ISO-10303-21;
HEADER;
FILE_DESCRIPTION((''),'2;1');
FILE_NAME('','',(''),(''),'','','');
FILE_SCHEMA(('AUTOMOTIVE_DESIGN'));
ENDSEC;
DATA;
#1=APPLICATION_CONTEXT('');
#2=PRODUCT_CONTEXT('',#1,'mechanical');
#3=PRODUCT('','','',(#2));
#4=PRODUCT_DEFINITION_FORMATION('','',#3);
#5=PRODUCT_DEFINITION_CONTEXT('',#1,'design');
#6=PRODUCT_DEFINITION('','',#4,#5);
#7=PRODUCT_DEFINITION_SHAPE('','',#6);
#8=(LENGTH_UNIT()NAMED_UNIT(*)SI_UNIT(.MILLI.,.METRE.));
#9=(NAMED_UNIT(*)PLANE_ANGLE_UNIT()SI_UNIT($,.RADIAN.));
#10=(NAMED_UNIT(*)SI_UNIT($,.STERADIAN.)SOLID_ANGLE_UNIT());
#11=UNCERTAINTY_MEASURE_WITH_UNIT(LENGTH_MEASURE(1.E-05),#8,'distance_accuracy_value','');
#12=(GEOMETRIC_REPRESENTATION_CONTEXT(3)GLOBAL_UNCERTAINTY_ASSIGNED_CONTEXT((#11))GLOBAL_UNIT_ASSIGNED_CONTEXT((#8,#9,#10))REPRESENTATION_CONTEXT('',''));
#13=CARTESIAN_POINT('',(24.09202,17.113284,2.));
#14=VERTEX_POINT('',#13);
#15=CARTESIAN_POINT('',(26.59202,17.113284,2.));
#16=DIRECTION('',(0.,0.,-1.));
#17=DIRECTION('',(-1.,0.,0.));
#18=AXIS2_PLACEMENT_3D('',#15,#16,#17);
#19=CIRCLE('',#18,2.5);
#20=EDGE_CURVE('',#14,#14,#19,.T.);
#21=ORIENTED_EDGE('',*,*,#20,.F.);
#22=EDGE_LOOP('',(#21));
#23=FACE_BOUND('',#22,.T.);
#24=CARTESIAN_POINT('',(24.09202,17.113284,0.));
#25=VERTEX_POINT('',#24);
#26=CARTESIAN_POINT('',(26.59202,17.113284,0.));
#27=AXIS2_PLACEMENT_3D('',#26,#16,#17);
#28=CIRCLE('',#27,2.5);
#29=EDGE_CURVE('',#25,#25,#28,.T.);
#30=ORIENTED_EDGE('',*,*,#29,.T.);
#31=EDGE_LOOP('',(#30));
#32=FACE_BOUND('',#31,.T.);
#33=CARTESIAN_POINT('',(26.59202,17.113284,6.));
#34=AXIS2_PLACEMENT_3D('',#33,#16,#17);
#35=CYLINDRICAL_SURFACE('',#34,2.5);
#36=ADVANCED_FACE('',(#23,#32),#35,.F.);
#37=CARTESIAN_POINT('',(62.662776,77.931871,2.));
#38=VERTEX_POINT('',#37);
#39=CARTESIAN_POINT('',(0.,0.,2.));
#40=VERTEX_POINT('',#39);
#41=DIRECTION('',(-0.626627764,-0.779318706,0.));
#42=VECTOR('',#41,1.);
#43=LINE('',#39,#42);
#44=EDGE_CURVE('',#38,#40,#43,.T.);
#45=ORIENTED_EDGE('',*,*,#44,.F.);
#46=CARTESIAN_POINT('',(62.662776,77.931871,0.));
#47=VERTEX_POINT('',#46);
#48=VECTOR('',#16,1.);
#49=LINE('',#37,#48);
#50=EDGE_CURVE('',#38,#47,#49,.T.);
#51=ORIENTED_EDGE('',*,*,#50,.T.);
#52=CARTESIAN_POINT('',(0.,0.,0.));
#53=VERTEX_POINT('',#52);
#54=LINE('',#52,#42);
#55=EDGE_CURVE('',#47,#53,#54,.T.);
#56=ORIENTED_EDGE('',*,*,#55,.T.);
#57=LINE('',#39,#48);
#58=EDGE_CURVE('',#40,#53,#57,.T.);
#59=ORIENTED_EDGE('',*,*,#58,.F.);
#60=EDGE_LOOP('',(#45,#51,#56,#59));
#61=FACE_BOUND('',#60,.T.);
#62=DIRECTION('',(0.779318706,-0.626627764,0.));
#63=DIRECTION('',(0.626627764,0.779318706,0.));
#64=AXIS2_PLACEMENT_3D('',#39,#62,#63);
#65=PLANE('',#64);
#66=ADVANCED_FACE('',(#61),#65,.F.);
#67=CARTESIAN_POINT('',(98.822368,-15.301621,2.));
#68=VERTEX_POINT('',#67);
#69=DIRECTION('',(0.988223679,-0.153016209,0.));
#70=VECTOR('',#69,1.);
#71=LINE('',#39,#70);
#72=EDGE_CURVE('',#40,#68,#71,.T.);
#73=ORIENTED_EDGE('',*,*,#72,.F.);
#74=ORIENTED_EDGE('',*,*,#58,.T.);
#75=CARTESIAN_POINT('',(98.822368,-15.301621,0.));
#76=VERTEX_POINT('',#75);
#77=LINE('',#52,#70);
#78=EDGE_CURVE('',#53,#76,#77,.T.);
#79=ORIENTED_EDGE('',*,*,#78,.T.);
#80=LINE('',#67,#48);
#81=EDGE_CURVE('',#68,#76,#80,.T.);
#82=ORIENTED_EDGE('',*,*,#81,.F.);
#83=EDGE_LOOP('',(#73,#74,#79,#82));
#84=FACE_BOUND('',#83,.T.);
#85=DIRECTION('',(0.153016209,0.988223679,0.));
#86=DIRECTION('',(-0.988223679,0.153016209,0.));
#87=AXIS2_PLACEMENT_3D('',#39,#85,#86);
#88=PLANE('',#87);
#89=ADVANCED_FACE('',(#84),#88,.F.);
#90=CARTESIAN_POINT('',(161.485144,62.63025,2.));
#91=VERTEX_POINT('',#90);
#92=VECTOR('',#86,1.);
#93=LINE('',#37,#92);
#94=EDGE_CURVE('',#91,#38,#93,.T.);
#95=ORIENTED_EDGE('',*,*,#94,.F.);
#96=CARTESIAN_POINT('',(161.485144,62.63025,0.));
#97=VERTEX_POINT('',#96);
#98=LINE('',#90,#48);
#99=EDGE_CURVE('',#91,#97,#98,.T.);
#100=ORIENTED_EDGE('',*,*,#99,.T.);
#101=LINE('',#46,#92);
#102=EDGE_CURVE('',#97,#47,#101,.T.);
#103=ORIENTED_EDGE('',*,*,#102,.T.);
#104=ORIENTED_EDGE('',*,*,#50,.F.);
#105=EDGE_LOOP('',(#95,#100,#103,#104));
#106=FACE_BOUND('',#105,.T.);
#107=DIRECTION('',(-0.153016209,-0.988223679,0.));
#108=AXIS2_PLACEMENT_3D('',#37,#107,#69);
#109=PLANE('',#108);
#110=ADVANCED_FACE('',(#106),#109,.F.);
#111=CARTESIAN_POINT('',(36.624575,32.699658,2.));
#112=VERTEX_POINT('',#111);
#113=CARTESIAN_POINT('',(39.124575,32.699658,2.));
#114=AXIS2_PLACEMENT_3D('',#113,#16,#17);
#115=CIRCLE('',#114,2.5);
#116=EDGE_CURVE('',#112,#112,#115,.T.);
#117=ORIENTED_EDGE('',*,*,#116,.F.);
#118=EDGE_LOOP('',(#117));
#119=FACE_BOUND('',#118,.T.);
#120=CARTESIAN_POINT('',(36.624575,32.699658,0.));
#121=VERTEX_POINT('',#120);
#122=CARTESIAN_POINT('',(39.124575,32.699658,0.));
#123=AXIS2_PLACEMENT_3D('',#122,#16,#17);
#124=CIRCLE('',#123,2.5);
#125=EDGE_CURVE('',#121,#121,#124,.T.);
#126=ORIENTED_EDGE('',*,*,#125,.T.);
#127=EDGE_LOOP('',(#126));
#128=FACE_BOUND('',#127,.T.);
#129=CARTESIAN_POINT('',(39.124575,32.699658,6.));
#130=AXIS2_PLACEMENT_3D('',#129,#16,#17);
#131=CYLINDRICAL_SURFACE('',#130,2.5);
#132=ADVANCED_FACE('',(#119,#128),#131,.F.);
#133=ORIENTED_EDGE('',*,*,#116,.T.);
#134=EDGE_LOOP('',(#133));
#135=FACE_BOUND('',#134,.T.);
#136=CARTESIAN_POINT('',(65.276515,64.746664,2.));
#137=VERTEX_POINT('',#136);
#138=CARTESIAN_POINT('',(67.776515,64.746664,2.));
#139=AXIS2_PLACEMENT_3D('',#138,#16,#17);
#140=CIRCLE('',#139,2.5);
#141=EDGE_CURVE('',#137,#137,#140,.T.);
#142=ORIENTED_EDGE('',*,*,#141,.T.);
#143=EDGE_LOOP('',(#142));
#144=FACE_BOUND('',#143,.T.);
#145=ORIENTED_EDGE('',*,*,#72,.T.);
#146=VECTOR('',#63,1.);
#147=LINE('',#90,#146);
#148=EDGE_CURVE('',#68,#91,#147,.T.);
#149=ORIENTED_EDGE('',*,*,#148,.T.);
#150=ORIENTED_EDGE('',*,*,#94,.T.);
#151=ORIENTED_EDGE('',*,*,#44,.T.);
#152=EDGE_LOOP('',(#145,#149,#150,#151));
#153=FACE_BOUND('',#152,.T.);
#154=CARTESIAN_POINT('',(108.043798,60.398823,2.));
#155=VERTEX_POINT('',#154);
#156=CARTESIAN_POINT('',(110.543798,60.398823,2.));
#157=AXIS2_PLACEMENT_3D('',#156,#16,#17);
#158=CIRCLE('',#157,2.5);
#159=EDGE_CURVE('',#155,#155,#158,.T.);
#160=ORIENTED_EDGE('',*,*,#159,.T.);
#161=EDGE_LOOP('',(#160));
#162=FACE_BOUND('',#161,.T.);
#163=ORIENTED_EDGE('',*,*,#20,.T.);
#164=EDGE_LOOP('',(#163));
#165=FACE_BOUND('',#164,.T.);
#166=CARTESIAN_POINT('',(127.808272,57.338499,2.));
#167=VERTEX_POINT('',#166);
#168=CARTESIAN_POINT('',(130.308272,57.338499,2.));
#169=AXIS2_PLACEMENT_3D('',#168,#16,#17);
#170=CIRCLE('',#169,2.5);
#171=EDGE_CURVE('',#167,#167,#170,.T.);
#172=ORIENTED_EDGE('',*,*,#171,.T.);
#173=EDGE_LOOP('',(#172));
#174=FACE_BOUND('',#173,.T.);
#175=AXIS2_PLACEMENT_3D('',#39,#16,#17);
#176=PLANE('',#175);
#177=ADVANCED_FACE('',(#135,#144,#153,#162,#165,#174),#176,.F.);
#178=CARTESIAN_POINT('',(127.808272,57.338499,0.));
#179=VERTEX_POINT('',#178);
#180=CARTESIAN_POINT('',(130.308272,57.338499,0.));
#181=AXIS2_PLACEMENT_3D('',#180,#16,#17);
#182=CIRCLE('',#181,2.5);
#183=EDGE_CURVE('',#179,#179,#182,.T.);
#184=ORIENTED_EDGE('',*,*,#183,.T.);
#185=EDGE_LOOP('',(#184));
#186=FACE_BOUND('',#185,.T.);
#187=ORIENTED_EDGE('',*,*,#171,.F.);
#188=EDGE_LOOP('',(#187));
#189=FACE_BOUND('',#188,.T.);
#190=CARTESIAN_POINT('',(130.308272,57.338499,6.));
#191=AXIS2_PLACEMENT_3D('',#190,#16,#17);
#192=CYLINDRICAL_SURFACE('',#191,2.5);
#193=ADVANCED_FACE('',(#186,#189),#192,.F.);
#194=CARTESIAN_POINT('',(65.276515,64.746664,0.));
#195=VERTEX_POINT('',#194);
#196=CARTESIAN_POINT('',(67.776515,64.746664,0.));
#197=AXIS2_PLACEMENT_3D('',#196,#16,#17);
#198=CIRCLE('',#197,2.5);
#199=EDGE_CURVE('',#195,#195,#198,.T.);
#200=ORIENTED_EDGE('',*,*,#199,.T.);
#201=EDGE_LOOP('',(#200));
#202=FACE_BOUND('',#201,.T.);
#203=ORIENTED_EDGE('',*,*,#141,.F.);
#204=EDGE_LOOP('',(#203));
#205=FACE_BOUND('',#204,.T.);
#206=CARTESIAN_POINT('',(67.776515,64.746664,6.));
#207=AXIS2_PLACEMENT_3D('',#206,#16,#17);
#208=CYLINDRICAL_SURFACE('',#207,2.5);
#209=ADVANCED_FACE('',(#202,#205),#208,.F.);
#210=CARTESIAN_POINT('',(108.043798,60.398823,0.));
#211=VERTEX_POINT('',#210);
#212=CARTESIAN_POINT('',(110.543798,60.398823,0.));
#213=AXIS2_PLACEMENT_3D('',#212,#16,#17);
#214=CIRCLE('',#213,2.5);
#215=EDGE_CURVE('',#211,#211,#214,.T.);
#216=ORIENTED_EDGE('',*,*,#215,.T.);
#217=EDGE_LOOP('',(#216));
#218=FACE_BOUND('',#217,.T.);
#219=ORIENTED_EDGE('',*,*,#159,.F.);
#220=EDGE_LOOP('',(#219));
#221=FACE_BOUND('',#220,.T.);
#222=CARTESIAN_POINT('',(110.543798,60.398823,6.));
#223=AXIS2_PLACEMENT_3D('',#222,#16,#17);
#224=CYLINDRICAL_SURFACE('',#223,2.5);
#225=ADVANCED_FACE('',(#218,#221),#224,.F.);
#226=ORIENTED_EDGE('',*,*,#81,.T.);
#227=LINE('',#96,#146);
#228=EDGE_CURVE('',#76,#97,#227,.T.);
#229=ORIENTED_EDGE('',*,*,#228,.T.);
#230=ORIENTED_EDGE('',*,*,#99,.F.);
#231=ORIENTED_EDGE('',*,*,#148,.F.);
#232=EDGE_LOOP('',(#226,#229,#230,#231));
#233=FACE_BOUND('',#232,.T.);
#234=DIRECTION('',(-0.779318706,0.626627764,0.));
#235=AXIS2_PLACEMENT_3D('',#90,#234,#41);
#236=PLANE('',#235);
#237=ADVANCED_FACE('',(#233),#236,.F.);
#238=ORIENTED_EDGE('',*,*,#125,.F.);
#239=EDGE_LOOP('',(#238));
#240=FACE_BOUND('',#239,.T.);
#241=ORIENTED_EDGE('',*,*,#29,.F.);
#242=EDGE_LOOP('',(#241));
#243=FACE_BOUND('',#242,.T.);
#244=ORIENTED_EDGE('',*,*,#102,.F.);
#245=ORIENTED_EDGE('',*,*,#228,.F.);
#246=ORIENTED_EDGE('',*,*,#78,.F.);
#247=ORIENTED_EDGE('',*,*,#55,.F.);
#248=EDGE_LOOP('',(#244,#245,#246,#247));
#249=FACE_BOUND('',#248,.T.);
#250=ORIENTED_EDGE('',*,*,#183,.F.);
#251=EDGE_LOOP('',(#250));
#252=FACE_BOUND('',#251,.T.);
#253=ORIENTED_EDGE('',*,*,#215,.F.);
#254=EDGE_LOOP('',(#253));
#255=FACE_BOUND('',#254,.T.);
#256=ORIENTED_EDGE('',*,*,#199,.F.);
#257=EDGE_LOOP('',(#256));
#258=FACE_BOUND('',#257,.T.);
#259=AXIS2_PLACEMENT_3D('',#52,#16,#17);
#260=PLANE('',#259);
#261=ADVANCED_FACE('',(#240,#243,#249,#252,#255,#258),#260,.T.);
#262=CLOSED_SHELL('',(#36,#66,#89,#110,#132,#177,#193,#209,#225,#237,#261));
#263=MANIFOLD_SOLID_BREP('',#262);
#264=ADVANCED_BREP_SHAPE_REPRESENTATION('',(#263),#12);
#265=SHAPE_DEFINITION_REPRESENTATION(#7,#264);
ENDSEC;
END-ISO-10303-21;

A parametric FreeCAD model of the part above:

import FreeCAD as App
import Part
import Sketcher

V = App.Vector


def add_polygon(sketch, points):
    """Adds a closed chain of lines whose ends are joined by coincident constraints."""
    first, n = sketch.GeometryCount, len(points)
    for a, b in zip(points, points[1:] + points[:1]):
        sketch.addGeometry(Part.LineSegment(App.Vector(*a, 0), App.Vector(*b, 0)), False)
    for i in range(n):
        sketch.addConstraint(Sketcher.Constraint("Coincident", first + i, 2, first + (i + 1) % n, 1))

doc = App.newDocument("Part")
body = doc.addObject("PartDesign::Body", "Body")

sketch1 = doc.addObject("Sketcher::SketchObject", "Sketch")
body.addObject(sketch1)
sketch1.AttachmentSupport = (doc.XY_Plane, [""])
sketch1.MapMode = "FlatFace"
add_polygon(sketch1, [(62.662776, 77.931871), (0, 0), (98.822368, -15.301621), (161.485144, 62.63025)])
sketch1.addConstraint([
    Sketcher.Constraint("Coincident", 0, 2, -1, 1),
    Sketcher.Constraint("Parallel", 0, 2),
    Sketcher.Constraint("Parallel", 1, 3),
    Sketcher.Constraint("Equal", 0, 1),
    Sketcher.Constraint("Distance", 0, 100.0),
    Sketcher.Constraint("DistanceY", 1, 2, -1, 1, 15.301621),
    Sketcher.Constraint("DistanceY", -1, 1, 2, 2, 62.63025),
])
pad1 = doc.addObject("PartDesign::Pad", "Pad")
body.addObject(pad1)
pad1.Profile = sketch1
pad1.Length = 2

sketch2 = doc.addObject("Sketcher::SketchObject", "Sketch001")
body.addObject(sketch2)
sketch2.AttachmentSupport = (doc.XY_Plane, [""])
sketch2.MapMode = "FlatFace"
sketch2.addGeometry(Part.Circle(V(39.124575, 32.699658, 0), V(0, 0, 1), 2.5), False)
sketch2.addConstraint([
    Sketcher.Constraint("Diameter", 0, 5.0),
    Sketcher.Constraint("DistanceX", -1, 1, 0, 3, 39.124575),
    Sketcher.Constraint("DistanceY", -1, 1, 0, 3, 32.699658),
])
pocket1 = doc.addObject("PartDesign::Pocket", "Pocket")
body.addObject(pocket1)
pocket1.Profile = sketch2
pocket1.Length = 6
pocket1.Reversed = True

sketch3 = doc.addObject("Sketcher::SketchObject", "Sketch002")
body.addObject(sketch3)
sketch3.AttachmentSupport = (doc.XY_Plane, [""])
sketch3.MapMode = "FlatFace"
sketch3.addGeometry(Part.Circle(V(26.59202, 17.113284, 0), V(0, 0, 1), 2.5), False)
sketch3.addConstraint([
    Sketcher.Constraint("Diameter", 0, 5.0),
    Sketcher.Constraint("DistanceX", -1, 1, 0, 3, 26.59202),
    Sketcher.Constraint("DistanceY", -1, 1, 0, 3, 17.113284),
])
pocket2 = doc.addObject("PartDesign::Pocket", "Pocket001")
body.addObject(pocket2)
pocket2.Profile = sketch3
pocket2.Length = 6
pocket2.Reversed = True

sketch4 = doc.addObject("Sketcher::SketchObject", "Sketch003")
body.addObject(sketch4)
sketch4.AttachmentSupport = (doc.XY_Plane, [""])
sketch4.MapMode = "FlatFace"
sketch4.addGeometry(Part.Circle(V(130.308272, 57.338499, 0), V(0, 0, 1), 2.5), False)
sketch4.addConstraint([
    Sketcher.Constraint("Diameter", 0, 5.0),
    Sketcher.Constraint("DistanceY", -1, 1, 0, 3, 57.338499),
    Sketcher.Constraint("DistanceX", -1, 1, 0, 3, 130.308272),
])
pocket3 = doc.addObject("PartDesign::Pocket", "Pocket002")
body.addObject(pocket3)
pocket3.Profile = sketch4
pocket3.Length = 6
pocket3.Reversed = True

sketch5 = doc.addObject("Sketcher::SketchObject", "Sketch004")
body.addObject(sketch5)
sketch5.AttachmentSupport = (doc.XY_Plane, [""])
sketch5.MapMode = "FlatFace"
sketch5.addGeometry(Part.Circle(V(110.543798, 60.398823, 0), V(0, 0, 1), 2.5), False)
sketch5.addConstraint([
    Sketcher.Constraint("Diameter", 0, 5.0),
    Sketcher.Constraint("DistanceX", -1, 1, 0, 3, 110.543798),
    Sketcher.Constraint("DistanceY", -1, 1, 0, 3, 60.398823),
])
pocket4 = doc.addObject("PartDesign::Pocket", "Pocket003")
body.addObject(pocket4)
pocket4.Profile = sketch5
pocket4.Length = 6
pocket4.Reversed = True

sketch6 = doc.addObject("Sketcher::SketchObject", "Sketch005")
body.addObject(sketch6)
sketch6.AttachmentSupport = (doc.XY_Plane, [""])
sketch6.MapMode = "FlatFace"
sketch6.addGeometry(Part.Circle(V(67.776515, 64.746664, 0), V(0, 0, 1), 2.5), False)
sketch6.addConstraint([
    Sketcher.Constraint("Diameter", 0, 5.0),
    Sketcher.Constraint("DistanceX", -1, 1, 0, 3, 67.776515),
    Sketcher.Constraint("DistanceY", -1, 1, 0, 3, 64.746664),
])
pocket5 = doc.addObject("PartDesign::Pocket", "Pocket004")
body.addObject(pocket5)
pocket5.Profile = sketch6
pocket5.Length = 6
pocket5.Reversed = True

doc.recompute()
